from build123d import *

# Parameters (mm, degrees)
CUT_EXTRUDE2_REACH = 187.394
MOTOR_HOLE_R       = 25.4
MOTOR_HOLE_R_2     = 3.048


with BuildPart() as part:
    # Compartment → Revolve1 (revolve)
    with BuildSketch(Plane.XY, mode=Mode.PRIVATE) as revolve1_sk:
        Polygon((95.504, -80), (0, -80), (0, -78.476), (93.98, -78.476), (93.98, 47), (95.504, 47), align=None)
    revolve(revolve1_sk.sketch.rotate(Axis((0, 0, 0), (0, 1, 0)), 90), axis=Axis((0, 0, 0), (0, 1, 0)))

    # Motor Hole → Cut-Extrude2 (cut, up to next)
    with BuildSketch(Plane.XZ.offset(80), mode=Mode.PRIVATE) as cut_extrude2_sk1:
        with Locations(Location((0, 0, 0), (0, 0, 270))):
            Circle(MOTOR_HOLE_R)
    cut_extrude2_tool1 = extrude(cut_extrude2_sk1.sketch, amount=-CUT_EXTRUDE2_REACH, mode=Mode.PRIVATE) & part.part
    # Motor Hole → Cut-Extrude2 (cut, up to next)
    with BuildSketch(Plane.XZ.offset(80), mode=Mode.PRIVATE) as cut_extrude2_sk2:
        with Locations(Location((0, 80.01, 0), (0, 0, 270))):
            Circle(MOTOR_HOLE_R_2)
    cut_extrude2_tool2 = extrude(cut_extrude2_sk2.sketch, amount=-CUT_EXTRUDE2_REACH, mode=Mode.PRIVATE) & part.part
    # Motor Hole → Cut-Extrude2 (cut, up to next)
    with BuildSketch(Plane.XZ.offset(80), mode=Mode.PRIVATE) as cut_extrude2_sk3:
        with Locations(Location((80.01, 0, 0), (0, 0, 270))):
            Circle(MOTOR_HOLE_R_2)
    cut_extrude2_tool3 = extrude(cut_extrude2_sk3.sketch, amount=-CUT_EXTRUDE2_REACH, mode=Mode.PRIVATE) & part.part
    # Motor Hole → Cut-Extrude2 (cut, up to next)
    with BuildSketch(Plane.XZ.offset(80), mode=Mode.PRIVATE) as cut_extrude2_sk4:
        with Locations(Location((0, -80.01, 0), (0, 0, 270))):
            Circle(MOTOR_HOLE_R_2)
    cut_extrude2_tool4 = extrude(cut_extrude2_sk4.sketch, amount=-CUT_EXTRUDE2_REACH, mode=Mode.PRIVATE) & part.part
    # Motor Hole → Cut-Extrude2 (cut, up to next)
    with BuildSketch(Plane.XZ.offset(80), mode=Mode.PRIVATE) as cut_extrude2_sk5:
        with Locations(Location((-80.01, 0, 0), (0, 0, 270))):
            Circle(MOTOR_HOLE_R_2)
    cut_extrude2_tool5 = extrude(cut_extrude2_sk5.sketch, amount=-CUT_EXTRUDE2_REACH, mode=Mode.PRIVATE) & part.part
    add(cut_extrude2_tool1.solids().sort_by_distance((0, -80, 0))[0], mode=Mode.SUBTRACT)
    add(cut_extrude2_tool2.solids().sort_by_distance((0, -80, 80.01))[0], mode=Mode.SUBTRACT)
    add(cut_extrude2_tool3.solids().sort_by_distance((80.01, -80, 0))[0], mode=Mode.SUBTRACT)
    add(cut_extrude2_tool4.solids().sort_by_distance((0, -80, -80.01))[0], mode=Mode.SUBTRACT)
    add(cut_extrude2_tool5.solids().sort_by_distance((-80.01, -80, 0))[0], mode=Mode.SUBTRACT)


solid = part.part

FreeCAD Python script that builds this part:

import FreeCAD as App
import Part
import Sketcher
from FreeCAD import Vector
Q = App.Units.Quantity


def add_polygon(sketch, points):
    """Adds a closed chain of lines whose ends are joined by coincident constraints."""
    first, n = sketch.GeometryCount, len(points)
    for a, b in zip(points, points[1:] + points[:1]):
        sketch.addGeometry(Part.LineSegment(App.Vector(*a, 0), App.Vector(*b, 0)), False)
    for i in range(n):
        sketch.addConstraint(Sketcher.Constraint("Coincident", first + i, 2, first + (i + 1) % n, 1))

doc = App.newDocument("Part")
body = doc.addObject("PartDesign::Body", "Body")

# Sketch on XY plane
sketch1 = body.newObject("Sketcher::SketchObject", "Sketch")
sketch1.AttachmentSupport = (doc.getObject("XY_Plane"), [""])
sketch1.MapMode = "FlatFace"
add_polygon(sketch1, [(0, -80), (95.504, -80), (95.504, 47), (93.98, 47), (93.98, -78.476), (0, -78.476)])  # lines 0-5
sketch1.addConstraint(Sketcher.Constraint("Horizontal", 0))
sketch1.addConstraint(Sketcher.Constraint("Vertical", 1))
sketch1.addConstraint(Sketcher.Constraint("Horizontal", 2))
sketch1.addConstraint(Sketcher.Constraint("Vertical", 3))
sketch1.addConstraint(Sketcher.Constraint("Horizontal", 4))
sketch1.addConstraint(Sketcher.Constraint("Vertical", 5))
sketch1.addConstraint(Sketcher.Constraint("PointOnObject", 4, 2, -2))
sketch1.addConstraint(Sketcher.Constraint("Equal", 2, 5))
sketch1.addConstraint(Sketcher.Constraint("DistanceY", 1, 1, 1, 2, Q("5 in")))
sketch1.addConstraint(Sketcher.Constraint("DistanceX", 4, 2, 4, 1, Q("3.7 in")))
sketch1.addConstraint(Sketcher.Constraint("DistanceX", 0, 1, 0, 2, Q("3.76 in")))
sketch1.addConstraint(Sketcher.Constraint("DistanceY", 0, 2, -1, 1, Q("80 mm")))
revolution = body.newObject("PartDesign::Revolution", "Revolution")
revolution.Profile = sketch1
revolution.ReferenceAxis = (sketch1, ["V_Axis"])
revolution.Angle = 360

# Sketch on XZ plane
sketch2 = body.newObject("Sketcher::SketchObject", "Sketch001")
sketch2.AttachmentSupport = (doc.getObject("XZ_Plane"), [""])
sketch2.MapMode = "FlatFace"
sketch2.AttachmentOffset = App.Placement(Vector(0, 0, 80), App.Rotation())
sketch2.addGeometry(Part.Circle(Vector(0, 0, 0), Vector(0, 0, 1), 25.4), False)
sketch2.addConstraint(Sketcher.Constraint("Coincident", 0, 3, -1, 1))
sketch2.addConstraint(Sketcher.Constraint("Diameter", 0, Q("2 in")))
pocket1 = body.newObject("PartDesign::Pocket", "Pocket")
pocket1.Profile = sketch2
pocket1.Type = "UpToFirst"

# Sketch on XZ plane
sketch3 = body.newObject("Sketcher::SketchObject", "Sketch002")
sketch3.AttachmentSupport = (doc.getObject("XZ_Plane"), [""])
sketch3.MapMode = "FlatFace"
sketch3.AttachmentOffset = App.Placement(Vector(0, 0, 80), App.Rotation())
sketch3.addGeometry(Part.Circle(Vector(0, 80.01, 0), Vector(0, 0, 1), 3.048), False)
sketch3.addConstraint(Sketcher.Constraint("PointOnObject", 0, 3, -2))
sketch3.addConstraint(Sketcher.Constraint("Diameter", 0, Q("0.24 in")))
sketch3.addConstraint(Sketcher.Constraint("DistanceY", -1, 1, 0, 3, Q("3.15 in")))
pocket2 = body.newObject("PartDesign::Pocket", "Pocket001")
pocket2.Profile = sketch3
pocket2.Type = "UpToFirst"

# Sketch on XZ plane
sketch4 = body.newObject("Sketcher::SketchObject", "Sketch003")
sketch4.AttachmentSupport = (doc.getObject("XZ_Plane"), [""])
sketch4.MapMode = "FlatFace"
sketch4.AttachmentOffset = App.Placement(Vector(0, 0, 80), App.Rotation())
sketch4.addGeometry(Part.Circle(Vector(80.01, 0, 0), Vector(0, 0, 1), 3.048), False)
sketch4.addConstraint(Sketcher.Constraint("PointOnObject", 0, 3, -1))
sketch4.addConstraint(Sketcher.Constraint("Diameter", 0, Q("0.24 in")))
sketch4.addConstraint(Sketcher.Constraint("DistanceX", -1, 1, 0, 3, Q("3.15 in")))
pocket3 = body.newObject("PartDesign::Pocket", "Pocket002")
pocket3.Profile = sketch4
pocket3.Type = "UpToFirst"

# Sketch on XZ plane
sketch5 = body.newObject("Sketcher::SketchObject", "Sketch004")
sketch5.AttachmentSupport = (doc.getObject("XZ_Plane"), [""])
sketch5.MapMode = "FlatFace"
sketch5.AttachmentOffset = App.Placement(Vector(0, 0, 80), App.Rotation())
sketch5.addGeometry(Part.Circle(Vector(0, -80.01, 0), Vector(0, 0, 1), 3.048), False)
sketch5.addConstraint(Sketcher.Constraint("PointOnObject", 0, 3, -2))
sketch5.addConstraint(Sketcher.Constraint("Diameter", 0, Q("0.24 in")))
sketch5.addConstraint(Sketcher.Constraint("DistanceY", 0, 3, -1, 1, Q("3.15 in")))
pocket4 = body.newObject("PartDesign::Pocket", "Pocket003")
pocket4.Profile = sketch5
pocket4.Type = "UpToFirst"

# Sketch on XZ plane
sketch6 = body.newObject("Sketcher::SketchObject", "Sketch005")
sketch6.AttachmentSupport = (doc.getObject("XZ_Plane"), [""])
sketch6.MapMode = "FlatFace"
sketch6.AttachmentOffset = App.Placement(Vector(0, 0, 80), App.Rotation())
sketch6.addGeometry(Part.Circle(Vector(-80.01, 0, 0), Vector(0, 0, 1), 3.048), False)
sketch6.addConstraint(Sketcher.Constraint("PointOnObject", 0, 3, -1))
sketch6.addConstraint(Sketcher.Constraint("Diameter", 0, Q("0.24 in")))
sketch6.addConstraint(Sketcher.Constraint("DistanceX", 0, 3, -1, 1, Q("3.15 in")))
pocket5 = body.newObject("PartDesign::Pocket", "Pocket004")
pocket5.Profile = sketch6
pocket5.Type = "UpToFirst"

doc.recompute()
